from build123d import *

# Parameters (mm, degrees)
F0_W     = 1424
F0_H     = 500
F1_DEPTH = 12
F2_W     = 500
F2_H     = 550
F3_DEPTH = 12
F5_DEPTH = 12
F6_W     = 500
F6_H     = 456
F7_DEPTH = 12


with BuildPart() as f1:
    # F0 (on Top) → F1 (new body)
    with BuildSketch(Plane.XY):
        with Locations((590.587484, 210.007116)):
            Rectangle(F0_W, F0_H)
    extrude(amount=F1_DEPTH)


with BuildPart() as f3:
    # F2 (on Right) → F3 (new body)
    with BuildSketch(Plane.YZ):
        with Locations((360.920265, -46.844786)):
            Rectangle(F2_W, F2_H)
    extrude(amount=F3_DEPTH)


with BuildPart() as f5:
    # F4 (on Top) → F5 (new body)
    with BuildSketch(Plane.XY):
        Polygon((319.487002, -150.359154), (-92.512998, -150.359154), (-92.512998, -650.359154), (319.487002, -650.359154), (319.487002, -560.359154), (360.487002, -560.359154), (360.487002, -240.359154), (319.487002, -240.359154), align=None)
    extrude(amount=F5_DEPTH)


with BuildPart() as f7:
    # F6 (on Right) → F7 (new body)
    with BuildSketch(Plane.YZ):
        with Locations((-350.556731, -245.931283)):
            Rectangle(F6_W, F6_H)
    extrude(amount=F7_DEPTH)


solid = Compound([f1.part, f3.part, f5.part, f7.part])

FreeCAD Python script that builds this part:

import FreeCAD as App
import Part
import Sketcher

V = App.Vector

doc = App.newDocument("Part")
params = doc.addObject("Spreadsheet::Sheet", "Params")
for row, (alias, value) in enumerate([
    ("sketch1_width", "1424 mm"),
    ("sketch1_height", "500 mm"),
    ("pad1_length", "12 mm"),
    ("sketch2_width", "500 mm"),
    ("sketch2_height", "550 mm"),
    ("pad2_length", "12 mm"),
    ("sketch3_width", "412 mm"),
    ("sketch3_width2", "41 mm"),
    ("sketch3_height", "500 mm"),
    ("sketch3_height2", "90 mm"),
    ("pad3_length", "12 mm"),
    ("sketch4_width", "500 mm"),
    ("sketch4_height", "456 mm"),
    ("pad4_length", "12 mm"),
], start=1):
    params.set(f"A{row}", alias)
    params.set(f"B{row}", "=" + value)
    params.setAlias(f"B{row}", alias)

body = doc.addObject("PartDesign::Body", "Body")

# Sketch on XY plane
sketch1 = body.newObject("Sketcher::SketchObject", "Sketch")
sketch1.AttachmentSupport = (doc.getObject("XY_Plane"), [""])
sketch1.MapMode = "FlatFace"
sketch1.addGeometry(Part.LineSegment(V(-121, 460, 0), V(-121, -40, 0)), False)
sketch1.addGeometry(Part.LineSegment(V(-121, -40, 0), V(1303, -40, 0)), False)
sketch1.addGeometry(Part.LineSegment(V(1303, -40, 0), V(1303, 460, 0)), False)
sketch1.addGeometry(Part.LineSegment(V(1303, 460, 0), V(-121, 460, 0)), False)
sketch1.addConstraint(Sketcher.Constraint("Coincident", 0, 2, 1, 1))
sketch1.addConstraint(Sketcher.Constraint("Coincident", 1, 2, 2, 1))
sketch1.addConstraint(Sketcher.Constraint("Coincident", 2, 2, 3, 1))
sketch1.addConstraint(Sketcher.Constraint("Coincident", 3, 2, 0, 1))
sketch1.addConstraint(Sketcher.Constraint("Vertical", 0))
sketch1.addConstraint(Sketcher.Constraint("Horizontal", 1))
sketch1.addConstraint(Sketcher.Constraint("Vertical", 2))
sketch1.addConstraint(Sketcher.Constraint("Horizontal", 3))
sketch1.addConstraint(Sketcher.Constraint("DistanceX", 1, 1, 1, 2, 1424.0))
sketch1.addConstraint(Sketcher.Constraint("DistanceY", 0, 2, 0, 1, 500.0))
sketch1.addConstraint(Sketcher.Constraint("DistanceX", 0, 2, -1, 1, 121.412516))
sketch1.addConstraint(Sketcher.Constraint("DistanceY", 0, 2, -1, 1, 39.992884))
sketch1.setExpression("Constraints[8]", "Params.sketch1_width")
sketch1.setExpression("Constraints[9]", "Params.sketch1_height")
pad1 = body.newObject("PartDesign::Pad", "Pad")
pad1.Profile = sketch1
pad1.setExpression("Length", "Params.pad1_length")
body2 = doc.addObject("PartDesign::Body", "Body001")

# Sketch on YZ plane
sketch2 = body2.newObject("Sketcher::SketchObject", "Sketch001")
sketch2.AttachmentSupport = (doc.getObject("YZ_Plane001"), [""])
sketch2.MapMode = "FlatFace"
sketch2.addGeometry(Part.LineSegment(V(111, 228, 0), V(111, -322, 0)), False)
sketch2.addGeometry(Part.LineSegment(V(111, -322, 0), V(611, -322, 0)), False)
sketch2.addGeometry(Part.LineSegment(V(611, -322, 0), V(611, 228, 0)), False)
sketch2.addGeometry(Part.LineSegment(V(611, 228, 0), V(111, 228, 0)), False)
sketch2.addConstraint(Sketcher.Constraint("Coincident", 0, 2, 1, 1))
sketch2.addConstraint(Sketcher.Constraint("Coincident", 1, 2, 2, 1))
sketch2.addConstraint(Sketcher.Constraint("Coincident", 2, 2, 3, 1))
sketch2.addConstraint(Sketcher.Constraint("Coincident", 3, 2, 0, 1))
sketch2.addConstraint(Sketcher.Constraint("Vertical", 0))
sketch2.addConstraint(Sketcher.Constraint("Horizontal", 1))
sketch2.addConstraint(Sketcher.Constraint("Vertical", 2))
sketch2.addConstraint(Sketcher.Constraint("Horizontal", 3))
sketch2.addConstraint(Sketcher.Constraint("DistanceX", 1, 1, 1, 2, 500.0))
sketch2.addConstraint(Sketcher.Constraint("DistanceY", 0, 2, 0, 1, 550.0))
sketch2.addConstraint(Sketcher.Constraint("DistanceX", -1, 1, 0, 2, 110.920265))
sketch2.addConstraint(Sketcher.Constraint("DistanceY", 0, 2, -1, 1, 321.844786))
sketch2.setExpression("Constraints[8]", "Params.sketch2_width")
sketch2.setExpression("Constraints[9]", "Params.sketch2_height")
pad2 = body2.newObject("PartDesign::Pad", "Pad001")
pad2.Profile = sketch2
pad2.setExpression("Length", "Params.pad2_length")
body3 = doc.addObject("PartDesign::Body", "Body002")

# Sketch on XY plane
sketch3 = body3.newObject("Sketcher::SketchObject", "Sketch002")
sketch3.AttachmentSupport = (doc.getObject("XY_Plane002"), [""])
sketch3.MapMode = "FlatFace"
sketch3.addGeometry(Part.LineSegment(V(319, -150, 0), V(-93, -150, 0)), False)
sketch3.addGeometry(Part.LineSegment(V(-93, -150, 0), V(-93, -650, 0)), False)
sketch3.addGeometry(Part.LineSegment(V(-93, -650, 0), V(319, -650, 0)), False)
sketch3.addGeometry(Part.LineSegment(V(319, -650, 0), V(319, -560, 0)), False)
sketch3.addGeometry(Part.LineSegment(V(319, -560, 0), V(360, -560, 0)), False)
sketch3.addGeometry(Part.LineSegment(V(360, -560, 0), V(360, -240, 0)), False)
sketch3.addGeometry(Part.LineSegment(V(360, -240, 0), V(319, -240, 0)), False)
sketch3.addGeometry(Part.LineSegment(V(319, -240, 0), V(319, -150, 0)), False)
sketch3.addConstraint(Sketcher.Constraint("Coincident", 0, 2, 1, 1))
sketch3.addConstraint(Sketcher.Constraint("Coincident", 1, 2, 2, 1))
sketch3.addConstraint(Sketcher.Constraint("Coincident", 2, 2, 3, 1))
sketch3.addConstraint(Sketcher.Constraint("Coincident", 3, 2, 4, 1))
sketch3.addConstraint(Sketcher.Constraint("Coincident", 4, 2, 5, 1))
sketch3.addConstraint(Sketcher.Constraint("Coincident", 5, 2, 6, 1))
sketch3.addConstraint(Sketcher.Constraint("Coincident", 6, 2, 7, 1))
sketch3.addConstraint(Sketcher.Constraint("Coincident", 7, 2, 0, 1))
sketch3.addConstraint(Sketcher.Constraint("Horizontal", 0))
sketch3.addConstraint(Sketcher.Constraint("Vertical", 1))
sketch3.addConstraint(Sketcher.Constraint("Horizontal", 2))
sketch3.addConstraint(Sketcher.Constraint("Vertical", 3))
sketch3.addConstraint(Sketcher.Constraint("Horizontal", 4))
sketch3.addConstraint(Sketcher.Constraint("Vertical", 5))
sketch3.addConstraint(Sketcher.Constraint("Horizontal", 6))
sketch3.addConstraint(Sketcher.Constraint("Vertical", 7))
sketch3.addConstraint(Sketcher.Constraint("Vertical", 3, 2, 6, 2))
sketch3.addConstraint(Sketcher.Constraint("Equal", 3, 7))
sketch3.addConstraint(Sketcher.Constraint("DistanceX", 0, 2, 0, 1, 412.0))
sketch3.addConstraint(Sketcher.Constraint("DistanceX", 4, 1, 4, 2, 41.0))
sketch3.addConstraint(Sketcher.Constraint("DistanceY", 1, 2, 1, 1, 500.0))
sketch3.addConstraint(Sketcher.Constraint("DistanceY", 3, 1, 3, 2, 90.0))
sketch3.addConstraint(Sketcher.Constraint("DistanceX", -1, 1, 2, 2, 319.487002))
sketch3.addConstraint(Sketcher.Constraint("DistanceY", 0, 2, -1, 1, 150.359154))
sketch3.setExpression("Constraints[18]", "Params.sketch3_width")
sketch3.setExpression("Constraints[19]", "Params.sketch3_width2")
sketch3.setExpression("Constraints[20]", "Params.sketch3_height")
sketch3.setExpression("Constraints[21]", "Params.sketch3_height2")
pad3 = body3.newObject("PartDesign::Pad", "Pad002")
pad3.Profile = sketch3
pad3.setExpression("Length", "Params.pad3_length")
body4 = doc.addObject("PartDesign::Body", "Body003")

# Sketch on YZ plane
sketch4 = body4.newObject("Sketcher::SketchObject", "Sketch003")
sketch4.AttachmentSupport = (doc.getObject("YZ_Plane003"), [""])
sketch4.MapMode = "FlatFace"
sketch4.addGeometry(Part.LineSegment(V(-601, -18, 0), V(-601, -474, 0)), False)
sketch4.addGeometry(Part.LineSegment(V(-601, -474, 0), V(-101, -474, 0)), False)
sketch4.addGeometry(Part.LineSegment(V(-101, -474, 0), V(-101, -18, 0)), False)
sketch4.addGeometry(Part.LineSegment(V(-101, -18, 0), V(-601, -18, 0)), False)
sketch4.addConstraint(Sketcher.Constraint("Coincident", 0, 2, 1, 1))
sketch4.addConstraint(Sketcher.Constraint("Coincident", 1, 2, 2, 1))
sketch4.addConstraint(Sketcher.Constraint("Coincident", 2, 2, 3, 1))
sketch4.addConstraint(Sketcher.Constraint("Coincident", 3, 2, 0, 1))
sketch4.addConstraint(Sketcher.Constraint("Vertical", 0))
sketch4.addConstraint(Sketcher.Constraint("Horizontal", 1))
sketch4.addConstraint(Sketcher.Constraint("Vertical", 2))
sketch4.addConstraint(Sketcher.Constraint("Horizontal", 3))
sketch4.addConstraint(Sketcher.Constraint("DistanceX", 1, 1, 1, 2, 500.0))
sketch4.addConstraint(Sketcher.Constraint("DistanceY", 0, 2, 0, 1, 456.0))
sketch4.addConstraint(Sketcher.Constraint("DistanceX", 0, 2, -1, 1, 600.556731))
sketch4.addConstraint(Sketcher.Constraint("DistanceY", 0, 2, -1, 1, 473.931283))
sketch4.setExpression("Constraints[8]", "Params.sketch4_width")
sketch4.setExpression("Constraints[9]", "Params.sketch4_height")
pad4 = body4.newObject("PartDesign::Pad", "Pad003")
pad4.Profile = sketch4
pad4.setExpression("Length", "Params.pad4_length")

doc.recompute()
